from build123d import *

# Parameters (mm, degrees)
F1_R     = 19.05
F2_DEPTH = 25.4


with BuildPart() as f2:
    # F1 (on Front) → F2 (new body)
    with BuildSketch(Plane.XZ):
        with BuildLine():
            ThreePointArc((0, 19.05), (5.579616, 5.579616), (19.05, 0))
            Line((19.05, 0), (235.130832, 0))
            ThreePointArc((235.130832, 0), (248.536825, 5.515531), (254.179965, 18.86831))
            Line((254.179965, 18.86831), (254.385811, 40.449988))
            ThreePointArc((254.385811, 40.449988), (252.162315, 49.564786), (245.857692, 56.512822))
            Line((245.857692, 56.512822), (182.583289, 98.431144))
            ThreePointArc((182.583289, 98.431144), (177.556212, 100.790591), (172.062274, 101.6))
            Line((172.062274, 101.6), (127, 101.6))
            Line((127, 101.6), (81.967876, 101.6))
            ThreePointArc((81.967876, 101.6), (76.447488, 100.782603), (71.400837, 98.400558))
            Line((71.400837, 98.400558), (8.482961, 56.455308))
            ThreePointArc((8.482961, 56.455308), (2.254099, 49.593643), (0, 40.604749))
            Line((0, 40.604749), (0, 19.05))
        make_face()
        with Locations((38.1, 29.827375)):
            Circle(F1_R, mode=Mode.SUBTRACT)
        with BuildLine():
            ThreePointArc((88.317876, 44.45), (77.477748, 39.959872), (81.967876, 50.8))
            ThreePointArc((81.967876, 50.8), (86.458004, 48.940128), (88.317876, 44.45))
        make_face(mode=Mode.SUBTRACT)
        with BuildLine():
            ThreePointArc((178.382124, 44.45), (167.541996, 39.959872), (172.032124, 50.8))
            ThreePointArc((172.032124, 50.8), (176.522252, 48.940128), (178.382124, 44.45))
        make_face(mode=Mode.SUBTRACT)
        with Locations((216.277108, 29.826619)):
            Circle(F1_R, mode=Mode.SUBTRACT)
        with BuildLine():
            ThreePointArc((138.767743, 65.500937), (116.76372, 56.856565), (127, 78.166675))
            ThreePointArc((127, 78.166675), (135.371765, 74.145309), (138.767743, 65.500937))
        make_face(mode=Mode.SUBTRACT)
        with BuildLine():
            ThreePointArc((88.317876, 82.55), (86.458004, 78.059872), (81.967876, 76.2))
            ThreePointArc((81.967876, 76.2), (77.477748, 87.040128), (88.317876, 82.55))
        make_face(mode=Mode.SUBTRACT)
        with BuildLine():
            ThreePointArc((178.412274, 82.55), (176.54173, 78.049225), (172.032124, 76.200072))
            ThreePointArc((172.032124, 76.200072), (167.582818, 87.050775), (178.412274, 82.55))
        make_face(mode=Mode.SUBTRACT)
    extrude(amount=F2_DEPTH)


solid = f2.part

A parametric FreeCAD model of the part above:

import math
import FreeCAD as App
import Part
import Sketcher

V = App.Vector
Q = App.Units.Quantity

doc = App.newDocument("Part")
body = doc.addObject("PartDesign::Body", "Body")

# Sketch on XZ plane
sketch1 = body.newObject("Sketcher::SketchObject", "Sketch")
sketch1.AttachmentSupport = (doc.getObject("XZ_Plane"), [""])
sketch1.MapMode = "FlatFace"
sketch1.addGeometry([
    Part.ArcOfCircle(Part.Circle(V(19.050001, 19.050001, 0), V(0, 0, 1), 19.050001), math.radians(-179.999998), math.radians(-90.000002)),  # 0
    Part.LineSegment(V(19.05, 0, 0), V(235.130832, 0, 0)),  # 1
    Part.ArcOfCircle(Part.Circle(V(235.130832, 19.049999, 0), V(0, 0, 1), 19.049999), math.radians(-90.000001), math.radians(-0.546466)),  # 2
    Part.LineSegment(V(254.179965, 18.86831, 0), V(254.385811, 40.449988, 0)),  # 3
    Part.ArcOfCircle(Part.Circle(V(235.336679, 40.631678, 0), V(0, 0, 1), 19.049999), math.radians(-0.546469), math.radians(56.47614)),  # 4
    Part.LineSegment(V(245.857692, 56.512822, 0), V(182.583289, 98.431144, 0)),  # 5
    Part.ArcOfCircle(Part.Circle(V(172.062277, 82.550011, 0), V(0, 0, 1), 19.049989), math.radians(56.476124), math.radians(90.000009)),  # 6
    Part.LineSegment(V(172.062274, 101.6, 0), V(81.967876, 101.6, 0)),  # 7
    Part.ArcOfCircle(Part.Circle(V(81.967877, 82.549997, 0), V(0, 0, 1), 19.050003), math.radians(90.000003), math.radians(123.690065)),  # 8
    Part.LineSegment(V(71.400837, 98.400558, 0), V(8.482961, 56.455308, 0)),  # 9
    Part.ArcOfCircle(Part.Circle(V(19.050003, 40.604749, 0), V(0, 0, 1), 19.050003), math.radians(123.690073), math.radians(179.999999)),  # 10
    Part.LineSegment(V(0, 40.604749, 0), V(0, 19.05, 0)),  # 11
    Part.Circle(V(38.1, 29.827375, 0), V(0, 0, 1), 19.05),  # 12
    Part.ArcOfCircle(Part.Circle(V(81.967876, 44.45, 0), V(0, 0, 1), 6.35), math.radians(0.000002), math.radians(89.999998)),  # 13
    Part.ArcOfCircle(Part.Circle(V(81.967876, 44.45, 0), V(0, 0, 1), 6.35), math.radians(90), math.radians(360)),  # 14
    Part.Circle(V(216.277108, 29.826619, 0), V(0, 0, 1), 19.05),  # 15
    Part.ArcOfCircle(Part.Circle(V(172.032124, 44.45, 0), V(0, 0, 1), 6.35), math.radians(0.000002), math.radians(89.999998)),  # 16
    Part.ArcOfCircle(Part.Circle(V(172.032124, 44.45, 0), V(0, 0, 1), 6.35), math.radians(90), math.radians(360)),  # 17
    Part.ArcOfCircle(Part.Circle(V(126.067741, 65.500936, 0), V(0, 0, 1), 12.700002), math.radians(0.000006), math.radians(85.790346)),  # 18
    Part.ArcOfCircle(Part.Circle(V(126.067743, 65.500937, 0), V(0, 0, 1), 12.7), math.radians(85.790354), math.radians(359.999998)),  # 19
    Part.ArcOfCircle(Part.Circle(V(81.967876, 82.55, 0), V(0, 0, 1), 6.35), math.radians(0), math.radians(270)),  # 20
    Part.ArcOfCircle(Part.Circle(V(81.967876, 82.55, 0), V(0, 0, 1), 6.35), math.radians(-89.999998), math.radians(-0.000002)),  # 21
    Part.ArcOfCircle(Part.Circle(V(172.062274, 82.55, 0), V(0, 0, 1), 6.35), math.radians(-0.000003), math.radians(269.727956)),  # 22
    Part.ArcOfCircle(Part.Circle(V(172.062275, 82.549999, 0), V(0, 0, 1), 6.349999), math.radians(-90.272053), math.radians(0.000006)),  # 23
], False)
sketch1.addConstraint([
    Sketcher.Constraint("Tangent", 0, 2, 1, 1),
    Sketcher.Constraint("Tangent", 1, 2, 2, 1),
    Sketcher.Constraint("Tangent", 2, 2, 3, 1),
    Sketcher.Constraint("Tangent", 3, 2, 4, 1),
    Sketcher.Constraint("Tangent", 4, 2, 5, 1),
    Sketcher.Constraint("Tangent", 5, 2, 6, 1),
    Sketcher.Constraint("Tangent", 6, 2, 7, 1),
    Sketcher.Constraint("Tangent", 7, 2, 8, 1),
    Sketcher.Constraint("Tangent", 8, 2, 9, 1),
    Sketcher.Constraint("Tangent", 9, 2, 10, 1),
    Sketcher.Constraint("Tangent", 10, 2, 11, 1),
    Sketcher.Constraint("Tangent", 11, 2, 0, 1),
    Sketcher.Constraint("Tangent", 13, 1, 14, 2),
    Sketcher.Constraint("Coincident", 14, 1, 13, 2),
    Sketcher.Constraint("Tangent", 16, 1, 17, 2),
    Sketcher.Constraint("Coincident", 17, 1, 16, 2),
    Sketcher.Constraint("Tangent", 18, 1, 19, 2),
    Sketcher.Constraint("Coincident", 19, 1, 18, 2),
    Sketcher.Constraint("Tangent", 20, 1, 21, 2),
    Sketcher.Constraint("Coincident", 21, 1, 20, 2),
    Sketcher.Constraint("Tangent", 22, 1, 23, 2),
    Sketcher.Constraint("Coincident", 23, 1, 22, 2),
    Sketcher.Constraint("Horizontal", 1),
    Sketcher.Constraint("Horizontal", 7),
    Sketcher.Constraint("Vertical", 11),
    Sketcher.Constraint("Coincident", 20, 3, 8, 3),
    Sketcher.Constraint("Equal", 0, 2),
    Sketcher.Constraint("Equal", 2, 4),
    Sketcher.Constraint("Equal", 8, 10),
    Sketcher.Constraint("Equal", 4, 12),
    Sketcher.Constraint("Equal", 12, 15),
    Sketcher.Constraint("Equal", 14, 16),
    Sketcher.Constraint("Equal", 17, 20),
    Sketcher.Constraint("Equal", 21, 22),
    Sketcher.Constraint("PointOnObject", 0, 2, -1),
    Sketcher.Constraint("PointOnObject", 10, 2, -2),
    Sketcher.Constraint("Horizontal", 14, 3, 16, 3),
    Sketcher.Constraint("Horizontal", 21, 3, 22, 3),
    Sketcher.Constraint("Horizontal", 17, 3, 13, 1),
    Sketcher.Constraint("Horizontal", 13, 1, 16, 1),
    Sketcher.Constraint("Horizontal", 19, 3, 18, 1),
    Sketcher.Constraint("Horizontal", 23, 3, 20, 1),
    Sketcher.Constraint("Horizontal", 20, 1, 22, 1),
    Sketcher.Constraint("Vertical", 8, 3, 13, 3),
    Sketcher.Constraint("Vertical", 6, 3, 23, 3),
    Sketcher.Constraint("Vertical", 7, 2, 14, 1),
    Sketcher.Constraint("Vertical", 16, 3, 17, 1),
    Sketcher.Constraint("Vertical", 14, 1, 21, 1),
    Sketcher.Constraint("Vertical", 17, 1, 23, 1),
    Sketcher.Constraint("Diameter", 12, Q("1.5 in")),
    Sketcher.Constraint("Radius", 18, Q("0.5000001 in")),
    Sketcher.Constraint("Radius", 8, Q("0.7500001 in")),
    Sketcher.Constraint("Radius", 13, Q("0.25 in")),
    Sketcher.Constraint("DistanceY", -1, 1, 6, 2, Q("4 in")),
    Sketcher.Constraint("DistanceY", -1, 1, 14, 1, Q("2 in")),
    Sketcher.Constraint("DistanceX", -1, 1, 19, 1, Q("5 in")),
    Sketcher.Constraint("DistanceX", -1, 1, 12, 3, Q("1.5 in")),
    Sketcher.Constraint("Radius", 6, 19.049989),
    Sketcher.Constraint("DistanceX", 7, 2, 7, 1, 90.094398),
    Sketcher.Constraint("DistanceX", 17, 3, 5, 2, Q("0.4154002 in")),
    Sketcher.Constraint("DistanceX", 1, 1, 1, 2, 216.080832),
    Sketcher.Constraint("DistanceY", 11, 2, 11, 1, 21.554749),
    Sketcher.Constraint("DistanceX", 6, 3, 4, 3, 63.274402),
    Sketcher.Constraint("Distance", 3, 21.58266),
    Sketcher.Constraint("DistanceX", -1, 1, 4, 3, 235.336679),
    Sketcher.Constraint("DistanceX", -1, 1, 15, 3, 216.277108),
    Sketcher.Constraint("DistanceY", -1, 1, 15, 3, 29.826619),
    Sketcher.Constraint("DistanceX", -1, 1, 18, 3, 126.067741),
    Sketcher.Constraint("DistanceY", 12, 3, 8, 3, 52.722622),
    Sketcher.Constraint("DistanceY", 18, 3, 8, 3, 17.049061),
])
pad1 = body.newObject("PartDesign::Pad", "Pad")
pad1.Profile = sketch1
pad1.Length = Q("1 in")

doc.recompute()
